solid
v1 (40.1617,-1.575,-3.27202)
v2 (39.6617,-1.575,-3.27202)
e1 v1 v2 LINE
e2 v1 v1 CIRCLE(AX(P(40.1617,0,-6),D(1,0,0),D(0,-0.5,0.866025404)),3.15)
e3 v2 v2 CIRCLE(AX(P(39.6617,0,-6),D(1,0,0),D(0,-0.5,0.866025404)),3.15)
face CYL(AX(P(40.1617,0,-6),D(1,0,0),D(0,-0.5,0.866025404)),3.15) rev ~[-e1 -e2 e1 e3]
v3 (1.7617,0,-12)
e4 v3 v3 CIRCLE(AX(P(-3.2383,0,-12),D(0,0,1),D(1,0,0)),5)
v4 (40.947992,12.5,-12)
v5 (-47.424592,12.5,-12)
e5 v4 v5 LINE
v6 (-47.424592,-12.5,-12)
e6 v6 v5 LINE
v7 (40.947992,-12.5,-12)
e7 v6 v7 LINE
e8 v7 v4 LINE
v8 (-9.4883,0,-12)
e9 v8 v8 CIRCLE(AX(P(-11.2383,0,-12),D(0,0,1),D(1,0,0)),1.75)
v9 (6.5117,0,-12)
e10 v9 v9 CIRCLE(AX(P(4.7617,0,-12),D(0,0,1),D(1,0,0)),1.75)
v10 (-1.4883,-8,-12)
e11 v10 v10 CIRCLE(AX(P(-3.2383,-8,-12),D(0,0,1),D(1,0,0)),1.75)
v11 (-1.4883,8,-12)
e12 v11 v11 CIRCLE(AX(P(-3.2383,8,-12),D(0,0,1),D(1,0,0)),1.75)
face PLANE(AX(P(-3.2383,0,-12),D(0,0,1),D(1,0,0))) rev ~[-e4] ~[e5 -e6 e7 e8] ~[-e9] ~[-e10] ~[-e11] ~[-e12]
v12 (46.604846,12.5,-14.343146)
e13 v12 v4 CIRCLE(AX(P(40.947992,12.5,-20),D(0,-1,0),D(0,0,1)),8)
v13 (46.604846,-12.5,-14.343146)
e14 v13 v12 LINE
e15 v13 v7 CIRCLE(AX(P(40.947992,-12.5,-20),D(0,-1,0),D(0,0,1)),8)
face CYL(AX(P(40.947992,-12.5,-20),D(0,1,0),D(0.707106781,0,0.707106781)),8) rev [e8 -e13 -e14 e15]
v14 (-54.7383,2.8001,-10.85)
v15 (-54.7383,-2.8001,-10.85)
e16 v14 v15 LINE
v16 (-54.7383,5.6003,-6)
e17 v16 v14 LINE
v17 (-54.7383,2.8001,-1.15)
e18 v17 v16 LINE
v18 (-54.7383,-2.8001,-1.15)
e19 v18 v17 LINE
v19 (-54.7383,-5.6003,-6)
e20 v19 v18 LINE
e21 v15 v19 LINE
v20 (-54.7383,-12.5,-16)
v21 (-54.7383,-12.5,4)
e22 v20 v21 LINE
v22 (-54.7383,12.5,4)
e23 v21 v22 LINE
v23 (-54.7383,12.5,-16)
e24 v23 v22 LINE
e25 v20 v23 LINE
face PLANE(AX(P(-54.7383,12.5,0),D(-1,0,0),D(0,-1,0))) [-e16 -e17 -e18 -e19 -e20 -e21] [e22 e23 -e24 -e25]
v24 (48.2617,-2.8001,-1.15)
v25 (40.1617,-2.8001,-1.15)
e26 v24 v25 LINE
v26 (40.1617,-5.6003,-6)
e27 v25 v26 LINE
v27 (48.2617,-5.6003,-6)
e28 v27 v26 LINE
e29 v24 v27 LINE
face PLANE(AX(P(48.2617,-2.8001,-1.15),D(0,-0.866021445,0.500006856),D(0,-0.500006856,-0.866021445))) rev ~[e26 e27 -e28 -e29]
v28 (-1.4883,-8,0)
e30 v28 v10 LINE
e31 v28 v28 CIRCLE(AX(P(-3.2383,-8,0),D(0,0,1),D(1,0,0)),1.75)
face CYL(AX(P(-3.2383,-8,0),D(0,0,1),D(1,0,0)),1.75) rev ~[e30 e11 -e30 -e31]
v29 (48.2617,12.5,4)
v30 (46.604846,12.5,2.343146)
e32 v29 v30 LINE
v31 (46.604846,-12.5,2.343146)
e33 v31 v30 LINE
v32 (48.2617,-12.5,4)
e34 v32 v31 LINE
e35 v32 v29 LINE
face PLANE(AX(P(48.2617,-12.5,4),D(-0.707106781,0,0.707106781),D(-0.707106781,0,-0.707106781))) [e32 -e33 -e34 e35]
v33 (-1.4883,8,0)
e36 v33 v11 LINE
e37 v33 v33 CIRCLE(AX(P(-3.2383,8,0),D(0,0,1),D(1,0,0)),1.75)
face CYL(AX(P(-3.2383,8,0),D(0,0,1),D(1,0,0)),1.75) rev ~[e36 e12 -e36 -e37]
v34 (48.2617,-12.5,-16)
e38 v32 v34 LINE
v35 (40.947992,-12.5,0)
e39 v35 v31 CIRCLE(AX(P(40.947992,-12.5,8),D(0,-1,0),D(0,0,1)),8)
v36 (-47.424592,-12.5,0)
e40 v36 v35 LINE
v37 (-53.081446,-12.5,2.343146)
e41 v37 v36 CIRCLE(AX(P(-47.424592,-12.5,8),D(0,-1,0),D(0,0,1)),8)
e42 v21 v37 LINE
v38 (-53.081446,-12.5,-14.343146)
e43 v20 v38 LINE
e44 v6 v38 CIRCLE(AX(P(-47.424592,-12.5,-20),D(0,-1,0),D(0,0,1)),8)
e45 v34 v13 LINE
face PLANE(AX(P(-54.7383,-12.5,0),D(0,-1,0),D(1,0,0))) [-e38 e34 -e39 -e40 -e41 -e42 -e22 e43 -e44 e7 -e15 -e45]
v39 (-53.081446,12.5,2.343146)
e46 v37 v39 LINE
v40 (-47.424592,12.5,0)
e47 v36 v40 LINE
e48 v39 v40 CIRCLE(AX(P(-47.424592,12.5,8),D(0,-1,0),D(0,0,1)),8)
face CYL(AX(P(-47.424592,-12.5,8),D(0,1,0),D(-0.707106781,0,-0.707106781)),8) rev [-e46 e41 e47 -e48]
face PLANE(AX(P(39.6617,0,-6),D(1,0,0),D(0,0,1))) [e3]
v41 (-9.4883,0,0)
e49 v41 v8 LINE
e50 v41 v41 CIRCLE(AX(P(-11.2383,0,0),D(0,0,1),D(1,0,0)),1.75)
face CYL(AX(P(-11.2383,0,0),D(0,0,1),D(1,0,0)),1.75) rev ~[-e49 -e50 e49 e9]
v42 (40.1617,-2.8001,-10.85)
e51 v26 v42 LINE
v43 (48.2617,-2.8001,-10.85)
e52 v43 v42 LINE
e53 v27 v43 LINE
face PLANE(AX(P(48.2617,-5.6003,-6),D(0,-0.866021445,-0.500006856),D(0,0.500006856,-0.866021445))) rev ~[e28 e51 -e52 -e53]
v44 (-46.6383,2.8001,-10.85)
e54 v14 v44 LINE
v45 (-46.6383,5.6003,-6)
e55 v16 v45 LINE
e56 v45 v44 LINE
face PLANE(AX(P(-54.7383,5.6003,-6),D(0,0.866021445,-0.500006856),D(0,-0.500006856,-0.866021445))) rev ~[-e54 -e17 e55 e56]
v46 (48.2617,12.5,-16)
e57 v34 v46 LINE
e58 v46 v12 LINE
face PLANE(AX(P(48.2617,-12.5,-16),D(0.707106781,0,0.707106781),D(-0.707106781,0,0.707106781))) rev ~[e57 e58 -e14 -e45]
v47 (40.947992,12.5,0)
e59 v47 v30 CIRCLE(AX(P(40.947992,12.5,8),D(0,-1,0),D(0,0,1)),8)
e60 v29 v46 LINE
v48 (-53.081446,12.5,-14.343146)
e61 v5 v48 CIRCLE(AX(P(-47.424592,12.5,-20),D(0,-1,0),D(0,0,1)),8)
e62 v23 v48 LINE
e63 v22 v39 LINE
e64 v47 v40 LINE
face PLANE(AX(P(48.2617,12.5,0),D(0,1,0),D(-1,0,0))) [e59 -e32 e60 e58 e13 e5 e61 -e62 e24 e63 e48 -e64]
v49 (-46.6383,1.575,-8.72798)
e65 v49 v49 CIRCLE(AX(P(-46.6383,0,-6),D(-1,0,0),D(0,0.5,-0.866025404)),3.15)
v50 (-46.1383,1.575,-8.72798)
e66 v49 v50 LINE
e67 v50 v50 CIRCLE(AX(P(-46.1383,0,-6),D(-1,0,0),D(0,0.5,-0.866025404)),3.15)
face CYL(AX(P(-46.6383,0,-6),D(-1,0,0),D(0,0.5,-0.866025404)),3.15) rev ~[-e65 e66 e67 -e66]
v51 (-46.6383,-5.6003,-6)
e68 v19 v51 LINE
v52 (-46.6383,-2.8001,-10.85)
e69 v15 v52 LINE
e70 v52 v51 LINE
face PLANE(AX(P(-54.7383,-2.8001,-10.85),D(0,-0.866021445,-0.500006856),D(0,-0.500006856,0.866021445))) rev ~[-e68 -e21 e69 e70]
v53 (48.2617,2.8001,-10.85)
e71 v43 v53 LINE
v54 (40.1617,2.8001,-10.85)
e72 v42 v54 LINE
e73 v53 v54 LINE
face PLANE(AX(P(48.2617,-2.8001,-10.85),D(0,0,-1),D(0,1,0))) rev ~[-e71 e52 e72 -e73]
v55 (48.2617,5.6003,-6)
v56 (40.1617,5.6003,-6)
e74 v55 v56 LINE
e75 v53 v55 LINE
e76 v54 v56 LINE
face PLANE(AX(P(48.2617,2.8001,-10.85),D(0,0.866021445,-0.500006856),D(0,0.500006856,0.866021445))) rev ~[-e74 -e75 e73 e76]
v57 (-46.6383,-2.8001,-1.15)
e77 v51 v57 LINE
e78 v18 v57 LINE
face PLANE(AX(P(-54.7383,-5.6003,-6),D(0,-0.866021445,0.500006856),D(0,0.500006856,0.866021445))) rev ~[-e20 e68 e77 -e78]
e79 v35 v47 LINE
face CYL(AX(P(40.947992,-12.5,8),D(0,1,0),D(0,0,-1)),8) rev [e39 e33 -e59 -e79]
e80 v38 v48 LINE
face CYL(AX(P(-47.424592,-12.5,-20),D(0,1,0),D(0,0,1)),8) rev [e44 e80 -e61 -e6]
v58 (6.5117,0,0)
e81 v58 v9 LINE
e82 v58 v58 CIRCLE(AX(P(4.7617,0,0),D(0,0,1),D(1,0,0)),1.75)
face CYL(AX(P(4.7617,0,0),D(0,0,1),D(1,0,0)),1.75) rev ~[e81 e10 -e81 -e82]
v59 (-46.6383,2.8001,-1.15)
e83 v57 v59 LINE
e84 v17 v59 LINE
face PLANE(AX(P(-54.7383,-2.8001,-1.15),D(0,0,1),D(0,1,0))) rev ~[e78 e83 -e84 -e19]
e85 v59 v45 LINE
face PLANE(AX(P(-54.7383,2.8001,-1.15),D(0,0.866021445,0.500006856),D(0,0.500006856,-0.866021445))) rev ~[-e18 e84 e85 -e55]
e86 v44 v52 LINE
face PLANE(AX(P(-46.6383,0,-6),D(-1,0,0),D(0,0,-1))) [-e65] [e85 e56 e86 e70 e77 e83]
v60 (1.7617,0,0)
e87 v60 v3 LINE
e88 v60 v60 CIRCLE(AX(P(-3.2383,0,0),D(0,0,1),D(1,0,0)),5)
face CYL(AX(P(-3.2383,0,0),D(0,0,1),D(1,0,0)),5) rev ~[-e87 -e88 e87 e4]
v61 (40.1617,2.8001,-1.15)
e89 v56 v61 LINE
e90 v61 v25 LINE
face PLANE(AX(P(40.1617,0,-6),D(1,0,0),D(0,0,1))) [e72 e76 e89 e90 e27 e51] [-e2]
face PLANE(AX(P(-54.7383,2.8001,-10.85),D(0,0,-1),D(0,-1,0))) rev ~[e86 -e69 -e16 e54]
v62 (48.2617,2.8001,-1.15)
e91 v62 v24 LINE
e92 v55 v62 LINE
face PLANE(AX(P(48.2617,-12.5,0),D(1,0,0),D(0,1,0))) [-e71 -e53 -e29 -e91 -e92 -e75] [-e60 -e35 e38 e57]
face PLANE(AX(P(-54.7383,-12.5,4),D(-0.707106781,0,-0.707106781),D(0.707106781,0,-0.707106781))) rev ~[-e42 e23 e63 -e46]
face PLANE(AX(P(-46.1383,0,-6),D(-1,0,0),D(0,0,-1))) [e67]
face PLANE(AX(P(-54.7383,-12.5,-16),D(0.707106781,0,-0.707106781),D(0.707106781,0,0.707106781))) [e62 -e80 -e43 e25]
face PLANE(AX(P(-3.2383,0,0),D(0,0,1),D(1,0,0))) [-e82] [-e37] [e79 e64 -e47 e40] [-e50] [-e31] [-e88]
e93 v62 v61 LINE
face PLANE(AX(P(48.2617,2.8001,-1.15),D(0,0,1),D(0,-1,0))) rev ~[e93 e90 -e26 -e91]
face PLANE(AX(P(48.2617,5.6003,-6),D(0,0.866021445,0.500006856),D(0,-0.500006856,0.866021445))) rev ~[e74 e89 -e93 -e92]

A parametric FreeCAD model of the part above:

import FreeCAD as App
import Part
import Sketcher
Q = App.Units.Quantity


def edges_at(feature, points):
    """Names of the edges that pass closest to the given points."""
    edges = feature.Shape.Edges
    near = lambda p: min(range(len(edges)), key=lambda i: edges[i].distToShape(Part.Vertex(*p))[0])
    return sorted({f"Edge{near(p) + 1}" for p in points})


def add_polygon(sketch, points):
    """Adds a closed chain of lines whose ends are joined by coincident constraints."""
    first, n = sketch.GeometryCount, len(points)
    for a, b in zip(points, points[1:] + points[:1]):
        sketch.addGeometry(Part.LineSegment(App.Vector(*a, 0), App.Vector(*b, 0)), False)
    for i in range(n):
        sketch.addConstraint(Sketcher.Constraint("Coincident", first + i, 2, first + (i + 1) % n, 1))

doc = App.newDocument("Part")
body = doc.addObject("PartDesign::Body", "Body")

# Sketch on XY plane
sketch1 = doc.addObject("Sketcher::SketchObject", "Sketch")
body.addObject(sketch1)
sketch1.AttachmentSupport = (doc.XY_Plane, [""])
sketch1.MapMode = "FlatFace"
add_polygon(sketch1, [(48.3, -12.5), (48.3, 12.5), (-54.7, 12.5), (-54.7, -12.5)])  # lines 0-3
sketch1.addGeometry(Part.Circle(App.Vector(-3.2, -8, 0), App.Vector(0, 0, 1), 1.8), False)  # 4
sketch1.addGeometry(Part.Circle(App.Vector(-11.2, 0, 0), App.Vector(0, 0, 1), 1.8), False)  # 5
sketch1.addGeometry(Part.Circle(App.Vector(-3.2, 0, 0), App.Vector(0, 0, 1), 5), False)  # 6
sketch1.addGeometry(Part.Circle(App.Vector(-3.2, 8, 0), App.Vector(0, 0, 1), 1.8), False)  # 7
sketch1.addGeometry(Part.Circle(App.Vector(4.8, 0, 0), App.Vector(0, 0, 1), 1.8), False)  # 8
sketch1.addConstraint([
    Sketcher.Constraint("Vertical", 0),
    Sketcher.Constraint("Horizontal", 1),
    Sketcher.Constraint("Vertical", 2),
    Sketcher.Constraint("Horizontal", 3),
    Sketcher.Constraint("Equal", 4, 5),
    Sketcher.Constraint("Equal", 5, 7),
    Sketcher.Constraint("Equal", 7, 8),
    Sketcher.Constraint("Symmetric", 4, 3, 7, 3, -1),
    Sketcher.Constraint("PointOnObject", 5, 3, -1),
    Sketcher.Constraint("PointOnObject", 6, 3, -1),
    Sketcher.Constraint("PointOnObject", 8, 3, -1),
    Sketcher.Constraint("Vertical", 4, 3, 6, 3),
    Sketcher.Constraint("Diameter", 6, Q("10 mm")),
    Sketcher.Constraint("Diameter", 4, Q("3.5 mm")),
    Sketcher.Constraint("DistanceX", 1, 2, 1, 1, Q("103 mm")),
    Sketcher.Constraint("DistanceY", 0, 1, 0, 2, Q("25 mm")),
    Sketcher.Constraint("DistanceY", 4, 3, -1, 1, Q("8 mm")),
    Sketcher.Constraint("DistanceX", 5, 3, 4, 3, Q("8 mm")),
    Sketcher.Constraint("DistanceX", 6, 3, 8, 3, Q("8 mm")),
    Sketcher.Constraint("DistanceY", -1, 1, 0, 2, Q("12.5 mm")),
    Sketcher.Constraint("DistanceX", 8, 3, 0, 2, Q("43.5 mm")),
    Sketcher.Constraint("DistanceX", 4, 3, -1, 1, Q("3.2383 mm")),
])
pad1 = doc.addObject("PartDesign::Pad", "Pad")
body.addObject(pad1)
pad1.Profile = sketch1
pad1.Length = 12
pad1.Reversed = True

# Sketch on YZ plane
sketch2 = doc.addObject("Sketcher::SketchObject", "Sketch001")
body.addObject(sketch2)
sketch2.AttachmentSupport = (doc.YZ_Plane, [""])
sketch2.MapMode = "FlatFace"
sketch2.AttachmentOffset = App.Placement(App.Vector(0, 0, -54.7383), App.Rotation())
add_polygon(sketch2, [(3, -11), (-3, -11), (-6, -6), (-3, -1), (3, -1), (6, -6)])  # lines 0-5
sketch2.addConstraint([
    Sketcher.Constraint("Horizontal", 0),
    Sketcher.Constraint("Horizontal", 3),
    Sketcher.Constraint("Symmetric", 1, 2, 4, 2, -2),
    Sketcher.Constraint("Parallel", 1, 4),
    Sketcher.Constraint("Parallel", 2, 5),
    Sketcher.Constraint("Vertical", 0, 2, 2, 2),
    Sketcher.Constraint("Vertical", 3, 2, 5, 2),
    Sketcher.Constraint("Angle", 1, Q("120.0005 deg")),
    Sketcher.Constraint("DistanceY", 1, 2, -1, 1, Q("6 mm")),
    Sketcher.Constraint("DistanceX", 0, 2, -1, 1, Q("2.8 mm")),
    Sketcher.Constraint("DistanceY", 0, 2, 2, 2, Q("9.7 mm")),
])
pocket1 = doc.addObject("PartDesign::Pocket", "Pocket")
body.addObject(pocket1)
pocket1.Profile = sketch2
pocket1.Length = 8.1
pocket1.Reversed = True

# Sketch on YZ plane
sketch3 = doc.addObject("Sketcher::SketchObject", "Sketch002")
body.addObject(sketch3)
sketch3.AttachmentSupport = (doc.YZ_Plane, [""])
sketch3.MapMode = "FlatFace"
sketch3.AttachmentOffset = App.Placement(App.Vector(0, 0, 48.2617), App.Rotation())
add_polygon(sketch3, [(3, -1), (-3, -1), (-6, -6), (-3, -11), (3, -11), (6, -6)])  # lines 0-5
sketch3.addConstraint([
    Sketcher.Constraint("Horizontal", 0),
    Sketcher.Constraint("Horizontal", 3),
    Sketcher.Constraint("Symmetric", 1, 2, 4, 2, -2),
    Sketcher.Constraint("Parallel", 1, 4),
    Sketcher.Constraint("Parallel", 2, 5),
    Sketcher.Constraint("Vertical", 0, 2, 2, 2),
    Sketcher.Constraint("Vertical", 3, 2, 5, 2),
    Sketcher.Constraint("Angle", 1, Q("-120.0005 deg")),
    Sketcher.Constraint("DistanceY", 1, 2, -1, 1, Q("6 mm")),
    Sketcher.Constraint("DistanceX", 0, 2, -1, 1, Q("2.8 mm")),
    Sketcher.Constraint("DistanceY", 2, 2, 0, 2, Q("9.7 mm")),
])
pocket2 = doc.addObject("PartDesign::Pocket", "Pocket001")
body.addObject(pocket2)
pocket2.Profile = sketch3
pocket2.Length = 8.1

# Sketch on XZ plane
sketch4 = doc.addObject("Sketcher::SketchObject", "Sketch003")
body.addObject(sketch4)
sketch4.AttachmentSupport = (doc.XZ_Plane, [""])
sketch4.MapMode = "FlatFace"
sketch4.AttachmentOffset = App.Placement(App.Vector(0, 0, 12.5), App.Rotation())
add_polygon(sketch4, [(44.3, -12), (48.3, -16), (48.3, -12)])  # lines 0-2
add_polygon(sketch4, [(44.3, 0), (48.3, 0), (48.3, 4)])  # lines 3-5
add_polygon(sketch4, [(-54.7, -12), (-54.7, -16), (-50.7, -12)])  # lines 6-8
add_polygon(sketch4, [(-50.7, 0), (-54.7, 4), (-54.7, 0)])  # lines 9-11
sketch4.addConstraint([
    Sketcher.Constraint("Vertical", 1),
    Sketcher.Constraint("Horizontal", 2),
    Sketcher.Constraint("Horizontal", 3),
    Sketcher.Constraint("Vertical", 4),
    Sketcher.Constraint("Vertical", 6),
    Sketcher.Constraint("Horizontal", 8),
    Sketcher.Constraint("Vertical", 10),
    Sketcher.Constraint("Horizontal", 11),
    Sketcher.Constraint("PointOnObject", 3, 2, -1),
    Sketcher.Constraint("PointOnObject", 10, 2, -1),
    Sketcher.Constraint("Perpendicular", 0, 5),
    Sketcher.Constraint("Parallel", 5, 7),
    Sketcher.Constraint("Perpendicular", 7, 9),
    Sketcher.Constraint("Horizontal", 0, 2, 6, 2),
    Sketcher.Constraint("Horizontal", 2, 2, 7, 2),
    Sketcher.Constraint("Horizontal", 4, 2, 9, 2),
    Sketcher.Constraint("Vertical", 1, 2, 3, 2),
    Sketcher.Constraint("Vertical", 2, 2, 5, 2),
    Sketcher.Constraint("Vertical", 8, 2, 9, 2),
    Sketcher.Constraint("Vertical", 7, 2, 11, 2),
    Sketcher.Constraint("DistanceX", 2, 2, 2, 1, Q("4 mm")),
    Sketcher.Constraint("DistanceY", 0, 2, -1, 1, Q("16 mm")),
    Sketcher.Constraint("DistanceX", 6, 2, 2, 2, Q("99 mm")),
    Sketcher.Constraint("DistanceX", -1, 1, 0, 2, Q("48.2617 mm")),
])
pad2 = doc.addObject("PartDesign::Pad", "Pad001")
body.addObject(pad2)
pad2.Profile = sketch4
pad2.Length = 25
pad2.Reversed = True

# Sketch on YZ plane
sketch5 = doc.addObject("Sketcher::SketchObject", "Sketch004")
body.addObject(sketch5)
sketch5.AttachmentSupport = (doc.YZ_Plane, [""])
sketch5.MapMode = "FlatFace"
sketch5.AttachmentOffset = App.Placement(App.Vector(0, 0, 40.1617), App.Rotation())
sketch5.addGeometry(Part.Circle(App.Vector(0, -6, 0), App.Vector(0, 0, 1), 3.1), False)
sketch5.addConstraint([
    Sketcher.Constraint("PointOnObject", 0, 3, -2),
    Sketcher.Constraint("Diameter", 0, Q("6.3 mm")),
    Sketcher.Constraint("DistanceY", 0, 3, -1, 1, Q("6 mm")),
])
pocket3 = doc.addObject("PartDesign::Pocket", "Pocket002")
body.addObject(pocket3)
pocket3.Profile = sketch5
pocket3.Length = 0.5

# Sketch on YZ plane
sketch6 = doc.addObject("Sketcher::SketchObject", "Sketch005")
body.addObject(sketch6)
sketch6.AttachmentSupport = (doc.YZ_Plane, [""])
sketch6.MapMode = "FlatFace"
sketch6.AttachmentOffset = App.Placement(App.Vector(0, 0, -46.6383), App.Rotation())
sketch6.addGeometry(Part.Circle(App.Vector(0, -6, 0), App.Vector(0, 0, 1), 3.1), False)
sketch6.addConstraint([
    Sketcher.Constraint("PointOnObject", 0, 3, -2),
    Sketcher.Constraint("Diameter", 0, Q("6.3 mm")),
    Sketcher.Constraint("DistanceY", 0, 3, -1, 1, Q("6 mm")),
])
pocket4 = doc.addObject("PartDesign::Pocket", "Pocket003")
body.addObject(pocket4)
pocket4.Profile = sketch6
pocket4.Length = 0.5
pocket4.Reversed = True
doc.recompute()

fillet = doc.addObject("PartDesign::Fillet", "Fillet")
body.addObject(fillet)
fillet.Base = (pocket4, edges_at(pocket4, [
    (44.262, 0, 0),
    (44.262, 0, -12),
    (-50.738, 0, -12),
    (-50.738, 0, 0),
]))
fillet.Radius = 8

doc.recompute()
